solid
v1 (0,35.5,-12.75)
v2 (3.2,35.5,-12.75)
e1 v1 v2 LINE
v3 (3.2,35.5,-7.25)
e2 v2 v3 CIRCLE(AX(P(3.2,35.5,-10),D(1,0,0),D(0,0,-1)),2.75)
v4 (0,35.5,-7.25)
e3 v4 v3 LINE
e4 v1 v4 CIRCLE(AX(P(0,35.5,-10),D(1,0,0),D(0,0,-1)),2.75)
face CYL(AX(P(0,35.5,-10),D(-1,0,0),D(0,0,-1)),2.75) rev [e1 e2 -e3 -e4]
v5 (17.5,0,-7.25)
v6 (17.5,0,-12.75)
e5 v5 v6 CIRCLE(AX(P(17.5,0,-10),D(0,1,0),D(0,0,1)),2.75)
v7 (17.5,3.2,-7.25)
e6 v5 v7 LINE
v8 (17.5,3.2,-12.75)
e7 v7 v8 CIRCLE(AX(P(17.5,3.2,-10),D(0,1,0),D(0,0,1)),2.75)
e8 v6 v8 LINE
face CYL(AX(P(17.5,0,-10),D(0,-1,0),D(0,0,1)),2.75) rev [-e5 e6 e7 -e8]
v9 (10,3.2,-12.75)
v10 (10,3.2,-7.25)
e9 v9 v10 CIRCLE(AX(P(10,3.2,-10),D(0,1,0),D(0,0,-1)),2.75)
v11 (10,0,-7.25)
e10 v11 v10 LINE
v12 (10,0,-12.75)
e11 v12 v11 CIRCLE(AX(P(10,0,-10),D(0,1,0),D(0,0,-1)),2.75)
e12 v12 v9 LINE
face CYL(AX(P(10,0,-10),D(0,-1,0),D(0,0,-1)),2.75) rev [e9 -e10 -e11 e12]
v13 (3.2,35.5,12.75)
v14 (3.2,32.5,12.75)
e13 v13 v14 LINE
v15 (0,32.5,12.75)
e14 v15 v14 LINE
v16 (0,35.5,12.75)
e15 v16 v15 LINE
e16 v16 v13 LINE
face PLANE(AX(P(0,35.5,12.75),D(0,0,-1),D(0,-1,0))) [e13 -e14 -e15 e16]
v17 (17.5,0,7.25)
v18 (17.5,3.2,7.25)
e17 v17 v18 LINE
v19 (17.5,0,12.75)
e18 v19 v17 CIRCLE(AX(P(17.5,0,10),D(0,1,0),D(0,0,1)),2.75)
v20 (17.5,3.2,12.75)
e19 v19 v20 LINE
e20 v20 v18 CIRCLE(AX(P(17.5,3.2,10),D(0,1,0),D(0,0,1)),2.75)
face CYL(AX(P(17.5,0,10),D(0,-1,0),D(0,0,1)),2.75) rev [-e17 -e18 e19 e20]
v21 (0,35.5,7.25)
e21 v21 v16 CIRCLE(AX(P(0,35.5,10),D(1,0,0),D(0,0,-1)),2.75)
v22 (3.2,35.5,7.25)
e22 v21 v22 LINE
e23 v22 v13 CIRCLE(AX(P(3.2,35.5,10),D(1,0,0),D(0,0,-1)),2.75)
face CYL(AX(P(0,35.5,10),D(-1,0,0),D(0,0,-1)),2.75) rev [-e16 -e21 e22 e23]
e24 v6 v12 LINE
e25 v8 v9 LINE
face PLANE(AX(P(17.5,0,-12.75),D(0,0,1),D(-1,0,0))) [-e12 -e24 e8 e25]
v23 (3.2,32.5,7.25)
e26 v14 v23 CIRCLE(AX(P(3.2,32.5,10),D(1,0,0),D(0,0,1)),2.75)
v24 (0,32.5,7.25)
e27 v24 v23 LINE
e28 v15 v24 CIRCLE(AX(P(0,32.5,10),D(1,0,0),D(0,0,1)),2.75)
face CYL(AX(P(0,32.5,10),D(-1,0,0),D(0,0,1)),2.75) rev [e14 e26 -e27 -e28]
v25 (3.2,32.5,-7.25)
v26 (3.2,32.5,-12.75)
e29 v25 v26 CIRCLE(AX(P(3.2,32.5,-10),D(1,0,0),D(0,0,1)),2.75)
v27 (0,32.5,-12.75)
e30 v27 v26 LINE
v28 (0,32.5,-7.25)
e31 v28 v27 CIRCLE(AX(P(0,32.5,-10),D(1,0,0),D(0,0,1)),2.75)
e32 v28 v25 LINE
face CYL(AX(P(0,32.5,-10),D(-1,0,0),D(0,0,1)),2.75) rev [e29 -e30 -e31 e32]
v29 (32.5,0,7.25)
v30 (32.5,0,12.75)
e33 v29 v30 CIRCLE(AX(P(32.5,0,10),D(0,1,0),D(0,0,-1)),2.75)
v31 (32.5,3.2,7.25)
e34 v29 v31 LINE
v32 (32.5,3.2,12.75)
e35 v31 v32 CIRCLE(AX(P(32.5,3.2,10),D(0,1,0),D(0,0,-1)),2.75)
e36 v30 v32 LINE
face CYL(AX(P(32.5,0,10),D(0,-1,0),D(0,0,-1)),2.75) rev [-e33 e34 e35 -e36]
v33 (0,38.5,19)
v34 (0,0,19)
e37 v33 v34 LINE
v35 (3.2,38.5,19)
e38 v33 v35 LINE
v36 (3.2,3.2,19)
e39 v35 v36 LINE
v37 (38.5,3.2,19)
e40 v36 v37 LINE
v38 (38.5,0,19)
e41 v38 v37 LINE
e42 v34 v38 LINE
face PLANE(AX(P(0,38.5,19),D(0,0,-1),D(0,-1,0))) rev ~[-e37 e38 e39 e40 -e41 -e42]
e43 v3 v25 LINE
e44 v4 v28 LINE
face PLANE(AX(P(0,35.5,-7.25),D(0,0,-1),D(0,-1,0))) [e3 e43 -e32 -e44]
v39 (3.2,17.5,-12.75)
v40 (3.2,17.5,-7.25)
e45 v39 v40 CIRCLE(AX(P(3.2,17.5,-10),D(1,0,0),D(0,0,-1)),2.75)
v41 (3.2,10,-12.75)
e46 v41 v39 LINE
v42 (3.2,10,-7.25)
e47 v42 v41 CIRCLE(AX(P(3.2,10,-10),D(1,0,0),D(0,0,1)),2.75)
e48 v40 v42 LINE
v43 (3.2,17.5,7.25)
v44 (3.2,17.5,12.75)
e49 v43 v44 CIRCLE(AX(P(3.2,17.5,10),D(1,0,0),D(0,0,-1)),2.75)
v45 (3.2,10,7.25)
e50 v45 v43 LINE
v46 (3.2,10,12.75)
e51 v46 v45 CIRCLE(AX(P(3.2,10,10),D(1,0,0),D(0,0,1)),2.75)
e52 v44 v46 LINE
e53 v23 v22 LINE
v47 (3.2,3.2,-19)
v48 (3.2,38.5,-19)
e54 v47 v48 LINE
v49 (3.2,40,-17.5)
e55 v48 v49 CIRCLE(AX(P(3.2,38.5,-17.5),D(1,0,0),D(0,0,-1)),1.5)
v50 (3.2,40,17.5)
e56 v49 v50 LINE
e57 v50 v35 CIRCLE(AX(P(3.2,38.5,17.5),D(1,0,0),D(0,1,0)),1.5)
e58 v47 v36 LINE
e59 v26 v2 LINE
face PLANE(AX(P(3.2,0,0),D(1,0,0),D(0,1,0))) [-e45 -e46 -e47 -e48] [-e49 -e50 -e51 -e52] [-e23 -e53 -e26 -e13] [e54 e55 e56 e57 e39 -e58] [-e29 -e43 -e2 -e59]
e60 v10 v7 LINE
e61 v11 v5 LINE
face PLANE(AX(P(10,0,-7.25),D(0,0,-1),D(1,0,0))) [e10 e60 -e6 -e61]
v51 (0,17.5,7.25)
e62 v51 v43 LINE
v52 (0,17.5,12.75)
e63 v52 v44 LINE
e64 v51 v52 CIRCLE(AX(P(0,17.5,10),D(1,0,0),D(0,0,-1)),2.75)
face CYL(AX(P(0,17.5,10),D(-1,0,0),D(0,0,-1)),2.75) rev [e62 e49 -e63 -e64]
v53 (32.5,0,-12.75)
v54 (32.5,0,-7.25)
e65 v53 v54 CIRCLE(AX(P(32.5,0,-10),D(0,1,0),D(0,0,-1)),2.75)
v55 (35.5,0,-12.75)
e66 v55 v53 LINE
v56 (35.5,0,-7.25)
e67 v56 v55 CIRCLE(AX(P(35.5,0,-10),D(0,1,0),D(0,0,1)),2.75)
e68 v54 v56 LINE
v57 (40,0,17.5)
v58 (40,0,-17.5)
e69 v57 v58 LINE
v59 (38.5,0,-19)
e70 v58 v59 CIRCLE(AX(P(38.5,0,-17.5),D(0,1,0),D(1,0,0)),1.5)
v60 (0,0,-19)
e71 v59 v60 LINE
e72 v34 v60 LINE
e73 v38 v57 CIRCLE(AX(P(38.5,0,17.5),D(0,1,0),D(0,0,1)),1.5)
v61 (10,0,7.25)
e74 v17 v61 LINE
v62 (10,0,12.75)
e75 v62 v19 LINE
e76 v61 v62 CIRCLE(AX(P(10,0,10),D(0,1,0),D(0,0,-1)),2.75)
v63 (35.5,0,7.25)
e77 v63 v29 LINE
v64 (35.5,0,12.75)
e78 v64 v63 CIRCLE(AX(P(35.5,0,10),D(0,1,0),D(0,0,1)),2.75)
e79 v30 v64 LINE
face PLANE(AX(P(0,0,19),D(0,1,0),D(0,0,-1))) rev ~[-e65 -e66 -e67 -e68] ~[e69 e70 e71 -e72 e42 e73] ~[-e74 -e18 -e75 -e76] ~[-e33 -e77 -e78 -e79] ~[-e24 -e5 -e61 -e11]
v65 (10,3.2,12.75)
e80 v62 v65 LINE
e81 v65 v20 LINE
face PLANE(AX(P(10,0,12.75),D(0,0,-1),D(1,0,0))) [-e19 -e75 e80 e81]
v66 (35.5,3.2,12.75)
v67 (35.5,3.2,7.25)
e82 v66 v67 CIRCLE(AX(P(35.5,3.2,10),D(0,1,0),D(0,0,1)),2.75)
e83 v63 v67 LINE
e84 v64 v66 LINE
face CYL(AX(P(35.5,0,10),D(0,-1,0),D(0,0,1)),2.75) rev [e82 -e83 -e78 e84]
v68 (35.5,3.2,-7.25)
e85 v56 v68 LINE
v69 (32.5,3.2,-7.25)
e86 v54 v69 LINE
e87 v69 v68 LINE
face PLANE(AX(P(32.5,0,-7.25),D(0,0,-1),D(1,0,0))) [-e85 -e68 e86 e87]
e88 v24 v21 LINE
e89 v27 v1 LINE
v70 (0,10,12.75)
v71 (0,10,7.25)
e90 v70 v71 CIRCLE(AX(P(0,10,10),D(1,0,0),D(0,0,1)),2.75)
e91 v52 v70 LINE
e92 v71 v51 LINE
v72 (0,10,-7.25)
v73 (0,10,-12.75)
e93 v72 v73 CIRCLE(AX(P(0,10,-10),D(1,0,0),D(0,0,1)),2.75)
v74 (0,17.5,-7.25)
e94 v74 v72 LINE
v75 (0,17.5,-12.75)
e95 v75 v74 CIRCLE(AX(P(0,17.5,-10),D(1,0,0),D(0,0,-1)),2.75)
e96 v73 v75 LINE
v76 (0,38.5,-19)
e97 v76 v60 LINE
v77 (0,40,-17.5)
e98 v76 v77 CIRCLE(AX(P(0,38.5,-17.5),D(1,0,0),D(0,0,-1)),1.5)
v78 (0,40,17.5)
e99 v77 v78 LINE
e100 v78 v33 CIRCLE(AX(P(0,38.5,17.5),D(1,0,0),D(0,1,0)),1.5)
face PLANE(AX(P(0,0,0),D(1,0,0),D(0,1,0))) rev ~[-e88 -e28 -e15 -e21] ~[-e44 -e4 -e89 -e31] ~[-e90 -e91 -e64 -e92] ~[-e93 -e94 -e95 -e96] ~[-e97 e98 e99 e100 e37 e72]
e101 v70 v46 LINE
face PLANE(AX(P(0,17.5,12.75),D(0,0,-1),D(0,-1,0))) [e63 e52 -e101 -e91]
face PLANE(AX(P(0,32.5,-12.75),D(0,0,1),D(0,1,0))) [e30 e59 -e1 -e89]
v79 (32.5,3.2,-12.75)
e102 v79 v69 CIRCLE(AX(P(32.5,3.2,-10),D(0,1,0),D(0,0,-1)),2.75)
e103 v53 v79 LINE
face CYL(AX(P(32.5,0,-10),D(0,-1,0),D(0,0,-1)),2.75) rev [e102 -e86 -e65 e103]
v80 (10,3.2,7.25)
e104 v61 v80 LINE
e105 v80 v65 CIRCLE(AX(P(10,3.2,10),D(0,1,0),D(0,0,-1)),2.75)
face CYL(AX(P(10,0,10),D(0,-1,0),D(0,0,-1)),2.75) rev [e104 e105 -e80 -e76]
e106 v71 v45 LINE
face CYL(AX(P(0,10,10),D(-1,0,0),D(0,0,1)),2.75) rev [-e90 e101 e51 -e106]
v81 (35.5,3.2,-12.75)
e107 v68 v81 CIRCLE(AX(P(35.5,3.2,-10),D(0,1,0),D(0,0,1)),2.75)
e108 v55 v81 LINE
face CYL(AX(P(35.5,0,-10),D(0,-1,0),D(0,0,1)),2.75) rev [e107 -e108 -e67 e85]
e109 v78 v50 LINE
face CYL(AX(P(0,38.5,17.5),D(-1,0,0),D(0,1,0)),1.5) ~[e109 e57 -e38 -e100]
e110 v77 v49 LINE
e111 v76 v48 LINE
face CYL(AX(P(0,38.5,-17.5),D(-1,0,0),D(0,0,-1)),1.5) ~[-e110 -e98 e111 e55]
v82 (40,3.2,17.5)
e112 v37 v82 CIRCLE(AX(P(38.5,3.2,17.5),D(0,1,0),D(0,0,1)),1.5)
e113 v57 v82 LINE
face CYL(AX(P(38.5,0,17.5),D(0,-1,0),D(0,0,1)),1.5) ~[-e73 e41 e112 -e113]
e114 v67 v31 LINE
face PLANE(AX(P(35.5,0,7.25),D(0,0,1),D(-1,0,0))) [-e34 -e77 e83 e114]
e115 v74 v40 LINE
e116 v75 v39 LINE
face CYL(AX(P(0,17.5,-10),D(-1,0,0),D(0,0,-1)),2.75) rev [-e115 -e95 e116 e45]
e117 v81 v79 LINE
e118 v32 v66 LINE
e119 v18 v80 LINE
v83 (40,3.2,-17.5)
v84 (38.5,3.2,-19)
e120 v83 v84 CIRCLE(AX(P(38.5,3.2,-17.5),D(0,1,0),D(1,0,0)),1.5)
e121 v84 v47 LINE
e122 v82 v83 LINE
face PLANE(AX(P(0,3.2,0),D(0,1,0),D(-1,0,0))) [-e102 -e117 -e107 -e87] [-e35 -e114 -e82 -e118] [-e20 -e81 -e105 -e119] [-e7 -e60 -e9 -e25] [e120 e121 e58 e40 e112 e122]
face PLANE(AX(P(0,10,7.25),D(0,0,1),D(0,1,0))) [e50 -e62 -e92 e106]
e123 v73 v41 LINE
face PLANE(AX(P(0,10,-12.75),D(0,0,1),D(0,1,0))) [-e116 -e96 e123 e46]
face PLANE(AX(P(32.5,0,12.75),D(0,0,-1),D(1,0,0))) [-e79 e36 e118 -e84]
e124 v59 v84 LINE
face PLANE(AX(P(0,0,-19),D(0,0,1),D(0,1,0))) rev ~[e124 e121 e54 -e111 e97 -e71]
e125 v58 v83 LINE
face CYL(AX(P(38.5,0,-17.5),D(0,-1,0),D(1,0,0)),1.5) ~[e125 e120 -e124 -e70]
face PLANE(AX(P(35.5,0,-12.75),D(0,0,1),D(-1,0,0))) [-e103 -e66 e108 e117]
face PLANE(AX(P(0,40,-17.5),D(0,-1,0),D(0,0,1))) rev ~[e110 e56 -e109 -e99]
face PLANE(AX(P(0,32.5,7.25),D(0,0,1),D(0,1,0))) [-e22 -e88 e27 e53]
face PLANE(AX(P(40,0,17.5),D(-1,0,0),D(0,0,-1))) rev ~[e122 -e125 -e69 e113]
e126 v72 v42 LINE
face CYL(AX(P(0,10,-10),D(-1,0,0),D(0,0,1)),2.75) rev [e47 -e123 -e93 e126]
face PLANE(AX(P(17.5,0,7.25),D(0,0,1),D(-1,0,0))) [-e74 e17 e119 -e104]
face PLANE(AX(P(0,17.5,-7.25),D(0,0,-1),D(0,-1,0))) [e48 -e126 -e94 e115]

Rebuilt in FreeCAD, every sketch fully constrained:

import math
import FreeCAD as App
import Part
import Sketcher

V = App.Vector
Q = App.Units.Quantity

doc = App.newDocument("Part")
body = doc.addObject("PartDesign::Body", "Body")

sketch1 = doc.addObject("Sketcher::SketchObject", "Sketch")
body.addObject(sketch1)
sketch1.AttachmentSupport = (doc.YZ_Plane, [""])
sketch1.MapMode = "FlatFace"
sketch1.addGeometry(Part.ArcOfCircle(Part.Circle(V(38.5, 17.5, 0), V(0, 0, 1), 1.5), math.radians(0), math.radians(90)), False)
sketch1.addGeometry(Part.LineSegment(V(38.5, 19, 0), V(0, 19, 0)), False)
sketch1.addGeometry(Part.LineSegment(V(0, 19, 0), V(0, -19, 0)), False)
sketch1.addGeometry(Part.LineSegment(V(0, -19, 0), V(38.5, -19, 0)), False)
sketch1.addGeometry(Part.ArcOfCircle(Part.Circle(V(38.5, -17.5, 0), V(0, 0, 1), 1.5), math.radians(-90), math.radians(0)), False)
sketch1.addGeometry(Part.LineSegment(V(40, -17.5, 0), V(40, 17.5, 0)), False)
sketch1.addGeometry(Part.LineSegment(V(10, -7.2, 0), V(17.5, -7.2, 0)), False)
sketch1.addGeometry(Part.ArcOfCircle(Part.Circle(V(17.5, -10, 0), V(0, 0, 1), 2.8), math.radians(-90), math.radians(90)), False)
sketch1.addGeometry(Part.LineSegment(V(17.5, -12.8, 0), V(10, -12.8, 0)), False)
sketch1.addGeometry(Part.ArcOfCircle(Part.Circle(V(10, -10, 0), V(0, 0, 1), 2.8), math.radians(90), math.radians(270)), False)
sketch1.addGeometry(Part.LineSegment(V(32.5, -7.2, 0), V(35.5, -7.2, 0)), False)
sketch1.addGeometry(Part.ArcOfCircle(Part.Circle(V(35.5, -10, 0), V(0, 0, 1), 2.8), math.radians(-90), math.radians(90)), False)
sketch1.addGeometry(Part.LineSegment(V(35.5, -12.8, 0), V(32.5, -12.8, 0)), False)
sketch1.addGeometry(Part.ArcOfCircle(Part.Circle(V(32.5, -10, 0), V(0, 0, 1), 2.8), math.radians(90), math.radians(270)), False)
sketch1.addGeometry(Part.LineSegment(V(10, 12.8, 0), V(17.5, 12.8, 0)), False)
sketch1.addGeometry(Part.ArcOfCircle(Part.Circle(V(17.5, 10, 0), V(0, 0, 1), 2.8), math.radians(-90), math.radians(90)), False)
sketch1.addGeometry(Part.LineSegment(V(17.5, 7.2, 0), V(10, 7.2, 0)), False)
sketch1.addGeometry(Part.ArcOfCircle(Part.Circle(V(10, 10, 0), V(0, 0, 1), 2.8), math.radians(90), math.radians(270)), False)
sketch1.addGeometry(Part.LineSegment(V(32.5, 12.8, 0), V(35.5, 12.8, 0)), False)
sketch1.addGeometry(Part.ArcOfCircle(Part.Circle(V(35.5, 10, 0), V(0, 0, 1), 2.8), math.radians(-90), math.radians(90)), False)
sketch1.addGeometry(Part.LineSegment(V(35.5, 7.2, 0), V(32.5, 7.2, 0)), False)
sketch1.addGeometry(Part.ArcOfCircle(Part.Circle(V(32.5, 10, 0), V(0, 0, 1), 2.8), math.radians(90), math.radians(270)), False)
sketch1.addConstraint(Sketcher.Constraint("Tangent", 0, 2, 1, 1))
sketch1.addConstraint(Sketcher.Constraint("Coincident", 1, 2, 2, 1))
sketch1.addConstraint(Sketcher.Constraint("Coincident", 2, 2, 3, 1))
sketch1.addConstraint(Sketcher.Constraint("Tangent", 3, 2, 4, 1))
sketch1.addConstraint(Sketcher.Constraint("Tangent", 4, 2, 5, 1))
sketch1.addConstraint(Sketcher.Constraint("Tangent", 5, 2, 0, 1))
sketch1.addConstraint(Sketcher.Constraint("Tangent", 6, 2, 7, 2))
sketch1.addConstraint(Sketcher.Constraint("Tangent", 7, 1, 8, 1))
sketch1.addConstraint(Sketcher.Constraint("Tangent", 8, 2, 9, 2))
sketch1.addConstraint(Sketcher.Constraint("Tangent", 9, 1, 6, 1))
sketch1.addConstraint(Sketcher.Constraint("Tangent", 10, 2, 11, 2))
sketch1.addConstraint(Sketcher.Constraint("Tangent", 11, 1, 12, 1))
sketch1.addConstraint(Sketcher.Constraint("Tangent", 12, 2, 13, 2))
sketch1.addConstraint(Sketcher.Constraint("Tangent", 13, 1, 10, 1))
sketch1.addConstraint(Sketcher.Constraint("Tangent", 14, 2, 15, 2))
sketch1.addConstraint(Sketcher.Constraint("Tangent", 15, 1, 16, 1))
sketch1.addConstraint(Sketcher.Constraint("Tangent", 16, 2, 17, 2))
sketch1.addConstraint(Sketcher.Constraint("Tangent", 17, 1, 14, 1))
sketch1.addConstraint(Sketcher.Constraint("Tangent", 18, 2, 19, 2))
sketch1.addConstraint(Sketcher.Constraint("Tangent", 19, 1, 20, 1))
sketch1.addConstraint(Sketcher.Constraint("Tangent", 20, 2, 21, 2))
sketch1.addConstraint(Sketcher.Constraint("Tangent", 21, 1, 18, 1))
sketch1.addConstraint(Sketcher.Constraint("Horizontal", 1))
sketch1.addConstraint(Sketcher.Constraint("Vertical", 2))
sketch1.addConstraint(Sketcher.Constraint("Horizontal", 3))
sketch1.addConstraint(Sketcher.Constraint("Vertical", 5))
sketch1.addConstraint(Sketcher.Constraint("Horizontal", 6))
sketch1.addConstraint(Sketcher.Constraint("Horizontal", 8))
sketch1.addConstraint(Sketcher.Constraint("Horizontal", 10))
sketch1.addConstraint(Sketcher.Constraint("Horizontal", 12))
sketch1.addConstraint(Sketcher.Constraint("Horizontal", 14))
sketch1.addConstraint(Sketcher.Constraint("Horizontal", 16))
sketch1.addConstraint(Sketcher.Constraint("Horizontal", 18))
sketch1.addConstraint(Sketcher.Constraint("Horizontal", 20))
sketch1.addConstraint(Sketcher.Constraint("Equal", 0, 4))
sketch1.addConstraint(Sketcher.Constraint("Equal", 9, 11))
sketch1.addConstraint(Sketcher.Constraint("Equal", 13, 15))
sketch1.addConstraint(Sketcher.Constraint("Equal", 17, 19))
sketch1.addConstraint(Sketcher.Constraint("Symmetric", 1, 2, 2, 2, -1, 1))
sketch1.addConstraint(Sketcher.Constraint("Symmetric", 7, 3, 15, 3, -1))
sketch1.addConstraint(Sketcher.Constraint("Symmetric", 11, 3, 19, 3, -1))
sketch1.addConstraint(Sketcher.Constraint("Horizontal", 9, 3, 11, 3))
sketch1.addConstraint(Sketcher.Constraint("Vertical", 9, 3, 17, 3))
sketch1.addConstraint(Sketcher.Constraint("Vertical", 13, 3, 21, 3))
sketch1.addConstraint(Sketcher.Constraint("Radius", 0, Q("1.5 mm")))
sketch1.addConstraint(Sketcher.Constraint("DistanceX", 10, 1, 10, 2, Q("3 mm")))
sketch1.addConstraint(Sketcher.Constraint("DistanceY", 2, 2, 2, 1, Q("38 mm")))
sketch1.addConstraint(Sketcher.Constraint("Radius", 7, Q("2.75 mm")))
sketch1.addConstraint(Sketcher.Constraint("DistanceX", 1, 2, 1, 1, Q("38.5 mm")))
sketch1.addConstraint(Sketcher.Constraint("DistanceX", 6, 1, 6, 2, Q("7.5 mm")))
sketch1.addConstraint(Sketcher.Constraint("DistanceY", 7, 3, -1, 1, Q("10 mm")))
sketch1.addConstraint(Sketcher.Constraint("DistanceX", -1, 1, 9, 3, Q("10 mm")))
sketch1.addConstraint(Sketcher.Constraint("DistanceX", 11, 3, 4, 3, Q("3 mm")))
pad1 = doc.addObject("PartDesign::Pad", "Pad")
body.addObject(pad1)
pad1.Profile = sketch1
pad1.Length = 3.2

sketch2 = doc.addObject("Sketcher::SketchObject", "Sketch001")
body.addObject(sketch2)
sketch2.AttachmentSupport = (doc.XZ_Plane, [""])
sketch2.MapMode = "FlatFace"
sketch2.addGeometry(Part.LineSegment(V(0, -19, 0), V(0, 19, 0)), False)
sketch2.addGeometry(Part.LineSegment(V(0, 19, 0), V(38.5, 19, 0)), False)
sketch2.addGeometry(Part.ArcOfCircle(Part.Circle(V(38.5, 17.5, 0), V(0, 0, 1), 1.5), math.radians(0), math.radians(90)), False)
sketch2.addGeometry(Part.LineSegment(V(40, 17.5, 0), V(40, -17.5, 0)), False)
sketch2.addGeometry(Part.ArcOfCircle(Part.Circle(V(38.5, -17.5, 0), V(0, 0, 1), 1.5), math.radians(-90), math.radians(0)), False)
sketch2.addGeometry(Part.LineSegment(V(38.5, -19, 0), V(0, -19, 0)), False)
sketch2.addGeometry(Part.ArcOfCircle(Part.Circle(V(32.5, -10, 0), V(0, 0, 1), 2.8), math.radians(90), math.radians(270)), False)
sketch2.addGeometry(Part.LineSegment(V(32.5, -12.8, 0), V(35.5, -12.8, 0)), False)
sketch2.addGeometry(Part.ArcOfCircle(Part.Circle(V(35.5, -10, 0), V(0, 0, 1), 2.8), math.radians(-90), math.radians(90)), False)
sketch2.addGeometry(Part.LineSegment(V(35.5, -7.2, 0), V(32.5, -7.2, 0)), False)
sketch2.addGeometry(Part.ArcOfCircle(Part.Circle(V(10, -10, 0), V(0, 0, 1), 2.8), math.radians(90), math.radians(270)), False)
sketch2.addGeometry(Part.LineSegment(V(10, -12.8, 0), V(17.5, -12.8, 0)), False)
sketch2.addGeometry(Part.ArcOfCircle(Part.Circle(V(17.5, -10, 0), V(0, 0, 1), 2.8), math.radians(-90), math.radians(90)), False)
sketch2.addGeometry(Part.LineSegment(V(17.5, -7.2, 0), V(10, -7.2, 0)), False)
sketch2.addGeometry(Part.ArcOfCircle(Part.Circle(V(32.5, 10, 0), V(0, 0, 1), 2.8), math.radians(90), math.radians(270)), False)
sketch2.addGeometry(Part.LineSegment(V(32.5, 7.2, 0), V(35.5, 7.2, 0)), False)
sketch2.addGeometry(Part.ArcOfCircle(Part.Circle(V(35.5, 10, 0), V(0, 0, 1), 2.8), math.radians(-90), math.radians(90)), False)
sketch2.addGeometry(Part.LineSegment(V(35.5, 12.8, 0), V(32.5, 12.8, 0)), False)
sketch2.addGeometry(Part.ArcOfCircle(Part.Circle(V(10, 10, 0), V(0, 0, 1), 2.8), math.radians(90), math.radians(270)), False)
sketch2.addGeometry(Part.LineSegment(V(10, 7.2, 0), V(17.5, 7.2, 0)), False)
sketch2.addGeometry(Part.ArcOfCircle(Part.Circle(V(17.5, 10, 0), V(0, 0, 1), 2.8), math.radians(-90), math.radians(90)), False)
sketch2.addGeometry(Part.LineSegment(V(17.5, 12.8, 0), V(10, 12.8, 0)), False)
sketch2.addConstraint(Sketcher.Constraint("Coincident", 0, 2, 1, 1))
sketch2.addConstraint(Sketcher.Constraint("Tangent", 1, 2, 2, 2))
sketch2.addConstraint(Sketcher.Constraint("Tangent", 2, 1, 3, 1))
sketch2.addConstraint(Sketcher.Constraint("Tangent", 3, 2, 4, 2))
sketch2.addConstraint(Sketcher.Constraint("Tangent", 4, 1, 5, 1))
sketch2.addConstraint(Sketcher.Constraint("Coincident", 5, 2, 0, 1))
sketch2.addConstraint(Sketcher.Constraint("Tangent", 6, 2, 7, 1))
sketch2.addConstraint(Sketcher.Constraint("Tangent", 7, 2, 8, 1))
sketch2.addConstraint(Sketcher.Constraint("Tangent", 8, 2, 9, 1))
sketch2.addConstraint(Sketcher.Constraint("Tangent", 9, 2, 6, 1))
sketch2.addConstraint(Sketcher.Constraint("Tangent", 10, 2, 11, 1))
sketch2.addConstraint(Sketcher.Constraint("Tangent", 11, 2, 12, 1))
sketch2.addConstraint(Sketcher.Constraint("Tangent", 12, 2, 13, 1))
sketch2.addConstraint(Sketcher.Constraint("Tangent", 13, 2, 10, 1))
sketch2.addConstraint(Sketcher.Constraint("Tangent", 14, 2, 15, 1))
sketch2.addConstraint(Sketcher.Constraint("Tangent", 15, 2, 16, 1))
sketch2.addConstraint(Sketcher.Constraint("Tangent", 16, 2, 17, 1))
sketch2.addConstraint(Sketcher.Constraint("Tangent", 17, 2, 14, 1))
sketch2.addConstraint(Sketcher.Constraint("Tangent", 18, 2, 19, 1))
sketch2.addConstraint(Sketcher.Constraint("Tangent", 19, 2, 20, 1))
sketch2.addConstraint(Sketcher.Constraint("Tangent", 20, 2, 21, 1))
sketch2.addConstraint(Sketcher.Constraint("Tangent", 21, 2, 18, 1))
sketch2.addConstraint(Sketcher.Constraint("Vertical", 0))
sketch2.addConstraint(Sketcher.Constraint("Horizontal", 1))
sketch2.addConstraint(Sketcher.Constraint("Vertical", 3))
sketch2.addConstraint(Sketcher.Constraint("Horizontal", 5))
sketch2.addConstraint(Sketcher.Constraint("Horizontal", 7))
sketch2.addConstraint(Sketcher.Constraint("Horizontal", 9))
sketch2.addConstraint(Sketcher.Constraint("Horizontal", 11))
sketch2.addConstraint(Sketcher.Constraint("Horizontal", 13))
sketch2.addConstraint(Sketcher.Constraint("Horizontal", 15))
sketch2.addConstraint(Sketcher.Constraint("Horizontal", 17))
sketch2.addConstraint(Sketcher.Constraint("Horizontal", 19))
sketch2.addConstraint(Sketcher.Constraint("Horizontal", 21))
sketch2.addConstraint(Sketcher.Constraint("Equal", 2, 4))
sketch2.addConstraint(Sketcher.Constraint("Equal", 8, 10))
sketch2.addConstraint(Sketcher.Constraint("Equal", 12, 14))
sketch2.addConstraint(Sketcher.Constraint("Equal", 16, 18))
sketch2.addConstraint(Sketcher.Constraint("Symmetric", 0, 2, 5, 2, -1, 1))
sketch2.addConstraint(Sketcher.Constraint("Symmetric", 6, 3, 14, 3, -1))
sketch2.addConstraint(Sketcher.Constraint("Symmetric", 10, 3, 18, 3, -1))
sketch2.addConstraint(Sketcher.Constraint("Horizontal", 8, 3, 10, 3))
sketch2.addConstraint(Sketcher.Constraint("Vertical", 8, 3, 16, 3))
sketch2.addConstraint(Sketcher.Constraint("Vertical", 12, 3, 20, 3))
sketch2.addConstraint(Sketcher.Constraint("Radius", 2, Q("1.5 mm")))
sketch2.addConstraint(Sketcher.Constraint("DistanceX", 7, 1, 7, 2, Q("3 mm")))
sketch2.addConstraint(Sketcher.Constraint("DistanceY", 0, 1, 0, 2, Q("38 mm")))
sketch2.addConstraint(Sketcher.Constraint("Radius", 6, Q("2.75 mm")))
sketch2.addConstraint(Sketcher.Constraint("DistanceX", 1, 1, 1, 2, Q("38.5 mm")))
sketch2.addConstraint(Sketcher.Constraint("DistanceX", 11, 1, 11, 2, Q("7.5 mm")))
sketch2.addConstraint(Sketcher.Constraint("DistanceY", 6, 3, -1, 1, Q("10 mm")))
sketch2.addConstraint(Sketcher.Constraint("DistanceX", -1, 1, 10, 3, Q("10 mm")))
sketch2.addConstraint(Sketcher.Constraint("DistanceX", 6, 3, 4, 3, Q("6 mm")))
pad2 = doc.addObject("PartDesign::Pad", "Pad001")
body.addObject(pad2)
pad2.Profile = sketch2
pad2.Length = 3.2
pad2.Reversed = True

doc.recompute()
